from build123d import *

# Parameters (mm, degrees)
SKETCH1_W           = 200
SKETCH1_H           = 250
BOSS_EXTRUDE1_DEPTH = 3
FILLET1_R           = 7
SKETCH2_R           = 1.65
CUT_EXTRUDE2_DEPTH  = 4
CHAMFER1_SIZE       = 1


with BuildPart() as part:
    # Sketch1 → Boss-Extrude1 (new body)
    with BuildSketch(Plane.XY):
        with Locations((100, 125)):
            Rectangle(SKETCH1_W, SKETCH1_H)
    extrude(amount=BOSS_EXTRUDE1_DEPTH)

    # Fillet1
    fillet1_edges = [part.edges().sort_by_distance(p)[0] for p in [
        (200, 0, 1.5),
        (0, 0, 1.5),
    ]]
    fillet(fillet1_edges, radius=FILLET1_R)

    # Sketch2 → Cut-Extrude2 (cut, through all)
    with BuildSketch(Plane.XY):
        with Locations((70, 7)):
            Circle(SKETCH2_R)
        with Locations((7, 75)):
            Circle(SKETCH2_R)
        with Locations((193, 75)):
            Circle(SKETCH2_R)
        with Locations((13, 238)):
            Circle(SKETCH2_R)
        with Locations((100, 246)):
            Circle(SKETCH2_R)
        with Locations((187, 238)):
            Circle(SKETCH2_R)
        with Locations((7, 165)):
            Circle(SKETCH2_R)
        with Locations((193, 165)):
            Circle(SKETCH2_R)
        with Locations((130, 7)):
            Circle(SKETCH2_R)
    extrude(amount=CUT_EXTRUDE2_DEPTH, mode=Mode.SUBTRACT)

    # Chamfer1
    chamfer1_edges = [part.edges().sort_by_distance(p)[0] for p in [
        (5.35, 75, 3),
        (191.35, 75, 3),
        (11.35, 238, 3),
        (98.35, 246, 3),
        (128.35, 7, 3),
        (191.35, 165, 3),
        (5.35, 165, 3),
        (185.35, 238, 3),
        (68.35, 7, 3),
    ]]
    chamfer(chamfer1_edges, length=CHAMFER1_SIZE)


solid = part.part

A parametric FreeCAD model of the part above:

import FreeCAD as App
import Part
import Sketcher
from FreeCAD import Vector


def edges_at(feature, points):
    """Names of the edges that pass closest to the given points."""
    edges = feature.Shape.Edges
    near = lambda p: min(range(len(edges)), key=lambda i: edges[i].distToShape(Part.Vertex(*p))[0])
    return sorted({f"Edge{near(p) + 1}" for p in points})

doc = App.newDocument("Part")
params = doc.addObject("Spreadsheet::Sheet", "Params")
for row, (alias, value) in enumerate([
    ("sketch1_width", "200 mm"),
    ("sketch1_height", "250 mm"),
    ("pad1_length", "3 mm"),
    ("fillet_radius", "7 mm"),
    ("sketch2_diameter", "3.3 mm"),
    ("chamfer_size", "1 mm"),
], start=1):
    params.set(f"A{row}", alias)
    params.set(f"B{row}", "=" + value)
    params.setAlias(f"B{row}", alias)

body = doc.addObject("PartDesign::Body", "Body")

# Sketch on XY plane
sketch1 = body.newObject("Sketcher::SketchObject", "Sketch")
sketch1.AttachmentSupport = (doc.getObject("XY_Plane"), [""])
sketch1.MapMode = "FlatFace"
sketch1.addGeometry(Part.LineSegment(Vector(0, 250, 0), Vector(0, 0, 0)), False)
sketch1.addGeometry(Part.LineSegment(Vector(0, 0, 0), Vector(200, 0, 0)), False)
sketch1.addGeometry(Part.LineSegment(Vector(200, 0, 0), Vector(200, 250, 0)), False)
sketch1.addGeometry(Part.LineSegment(Vector(200, 250, 0), Vector(0, 250, 0)), False)
sketch1.addConstraint(Sketcher.Constraint("Coincident", 0, 2, 1, 1))
sketch1.addConstraint(Sketcher.Constraint("Coincident", 1, 2, 2, 1))
sketch1.addConstraint(Sketcher.Constraint("Coincident", 2, 2, 3, 1))
sketch1.addConstraint(Sketcher.Constraint("Coincident", 3, 2, 0, 1))
sketch1.addConstraint(Sketcher.Constraint("Vertical", 0))
sketch1.addConstraint(Sketcher.Constraint("Horizontal", 1))
sketch1.addConstraint(Sketcher.Constraint("Vertical", 2))
sketch1.addConstraint(Sketcher.Constraint("Horizontal", 3))
sketch1.addConstraint(Sketcher.Constraint("Coincident", 0, 2, -1, 1))
sketch1.addConstraint(Sketcher.Constraint("DistanceX", 1, 1, 1, 2, 200.0))
sketch1.addConstraint(Sketcher.Constraint("DistanceY", 0, 2, 0, 1, 250.0))
sketch1.setExpression("Constraints[9]", "Params.sketch1_width")
sketch1.setExpression("Constraints[10]", "Params.sketch1_height")
pad1 = body.newObject("PartDesign::Pad", "Pad")
pad1.Profile = sketch1
pad1.setExpression("Length", "Params.pad1_length")
doc.recompute()

fillet = body.newObject("PartDesign::Fillet", "Fillet")
fillet.Base = (pad1, edges_at(pad1, [(200, 0, 1.5), (0, 0, 1.5)]))
fillet.setExpression("Radius", "Params.fillet_radius")

# Sketch on XY plane
sketch2 = body.newObject("Sketcher::SketchObject", "Sketch001")
sketch2.AttachmentSupport = (doc.getObject("XY_Plane"), [""])
sketch2.MapMode = "FlatFace"
sketch2.addGeometry(Part.Circle(Vector(70, 7, 0), Vector(0, 0, 1), 1.65), False)
sketch2.addGeometry(Part.Circle(Vector(7, 75, 0), Vector(0, 0, 1), 1.65), False)
sketch2.addGeometry(Part.Circle(Vector(193, 75, 0), Vector(0, 0, 1), 1.65), False)
sketch2.addGeometry(Part.Circle(Vector(13, 238, 0), Vector(0, 0, 1), 1.65), False)
sketch2.addGeometry(Part.Circle(Vector(100, 246, 0), Vector(0, 0, 1), 1.65), False)
sketch2.addGeometry(Part.Circle(Vector(187, 238, 0), Vector(0, 0, 1), 1.65), False)
sketch2.addGeometry(Part.Circle(Vector(7, 165, 0), Vector(0, 0, 1), 1.65), False)
sketch2.addGeometry(Part.Circle(Vector(193, 165, 0), Vector(0, 0, 1), 1.65), False)
sketch2.addGeometry(Part.Circle(Vector(130, 7, 0), Vector(0, 0, 1), 1.65), False)
sketch2.addConstraint(Sketcher.Constraint("Equal", 0, 1))
sketch2.addConstraint(Sketcher.Constraint("Equal", 1, 2))
sketch2.addConstraint(Sketcher.Constraint("Equal", 2, 3))
sketch2.addConstraint(Sketcher.Constraint("Equal", 3, 4))
sketch2.addConstraint(Sketcher.Constraint("Equal", 4, 5))
sketch2.addConstraint(Sketcher.Constraint("Equal", 5, 6))
sketch2.addConstraint(Sketcher.Constraint("Equal", 6, 7))
sketch2.addConstraint(Sketcher.Constraint("Equal", 7, 8))
sketch2.addConstraint(Sketcher.Constraint("Horizontal", 1, 3, 2, 3))
sketch2.addConstraint(Sketcher.Constraint("Horizontal", 3, 3, 5, 3))
sketch2.addConstraint(Sketcher.Constraint("Horizontal", 6, 3, 7, 3))
sketch2.addConstraint(Sketcher.Constraint("Horizontal", 0, 3, 8, 3))
sketch2.addConstraint(Sketcher.Constraint("Vertical", 1, 3, 6, 3))
sketch2.addConstraint(Sketcher.Constraint("Vertical", 2, 3, 7, 3))
sketch2.addConstraint(Sketcher.Constraint("Diameter", 0, 3.3))
sketch2.addConstraint(Sketcher.Constraint("DistanceX", -1, 1, 0, 3, 70.0))
sketch2.addConstraint(Sketcher.Constraint("DistanceY", -1, 1, 0, 3, 7.0))
sketch2.addConstraint(Sketcher.Constraint("DistanceX", -1, 1, 1, 3, 7.0))
sketch2.addConstraint(Sketcher.Constraint("DistanceY", -1, 1, 1, 3, 75.0))
sketch2.addConstraint(Sketcher.Constraint("DistanceX", -1, 1, 2, 3, 193.0))
sketch2.addConstraint(Sketcher.Constraint("DistanceX", -1, 1, 3, 3, 13.0))
sketch2.addConstraint(Sketcher.Constraint("DistanceY", -1, 1, 3, 3, 238.0))
sketch2.addConstraint(Sketcher.Constraint("DistanceX", -1, 1, 4, 3, 100.0))
sketch2.addConstraint(Sketcher.Constraint("DistanceY", -1, 1, 4, 3, 246.0))
sketch2.addConstraint(Sketcher.Constraint("DistanceX", -1, 1, 5, 3, 187.0))
sketch2.addConstraint(Sketcher.Constraint("DistanceY", -1, 1, 6, 3, 165.0))
sketch2.addConstraint(Sketcher.Constraint("DistanceX", -1, 1, 8, 3, 130.0))
sketch2.setExpression("Constraints[14]", "Params.sketch2_diameter")
pocket1 = body.newObject("PartDesign::Pocket", "Pocket")
pocket1.Profile = sketch2
pocket1.Type = "ThroughAll"
pocket1.Reversed = True
doc.recompute()

chamfer = body.newObject("PartDesign::Chamfer", "Chamfer")
chamfer.Base = (pocket1, edges_at(pocket1, [
    (5.35, 75, 3),
    (191.35, 75, 3),
    (11.35, 238, 3),
    (98.35, 246, 3),
    (128.35, 7, 3),
    (191.35, 165, 3),
    (5.35, 165, 3),
    (185.35, 238, 3),
    (68.35, 7, 3),
]))
chamfer.setExpression("Size", "Params.chamfer_size")

doc.recompute()
